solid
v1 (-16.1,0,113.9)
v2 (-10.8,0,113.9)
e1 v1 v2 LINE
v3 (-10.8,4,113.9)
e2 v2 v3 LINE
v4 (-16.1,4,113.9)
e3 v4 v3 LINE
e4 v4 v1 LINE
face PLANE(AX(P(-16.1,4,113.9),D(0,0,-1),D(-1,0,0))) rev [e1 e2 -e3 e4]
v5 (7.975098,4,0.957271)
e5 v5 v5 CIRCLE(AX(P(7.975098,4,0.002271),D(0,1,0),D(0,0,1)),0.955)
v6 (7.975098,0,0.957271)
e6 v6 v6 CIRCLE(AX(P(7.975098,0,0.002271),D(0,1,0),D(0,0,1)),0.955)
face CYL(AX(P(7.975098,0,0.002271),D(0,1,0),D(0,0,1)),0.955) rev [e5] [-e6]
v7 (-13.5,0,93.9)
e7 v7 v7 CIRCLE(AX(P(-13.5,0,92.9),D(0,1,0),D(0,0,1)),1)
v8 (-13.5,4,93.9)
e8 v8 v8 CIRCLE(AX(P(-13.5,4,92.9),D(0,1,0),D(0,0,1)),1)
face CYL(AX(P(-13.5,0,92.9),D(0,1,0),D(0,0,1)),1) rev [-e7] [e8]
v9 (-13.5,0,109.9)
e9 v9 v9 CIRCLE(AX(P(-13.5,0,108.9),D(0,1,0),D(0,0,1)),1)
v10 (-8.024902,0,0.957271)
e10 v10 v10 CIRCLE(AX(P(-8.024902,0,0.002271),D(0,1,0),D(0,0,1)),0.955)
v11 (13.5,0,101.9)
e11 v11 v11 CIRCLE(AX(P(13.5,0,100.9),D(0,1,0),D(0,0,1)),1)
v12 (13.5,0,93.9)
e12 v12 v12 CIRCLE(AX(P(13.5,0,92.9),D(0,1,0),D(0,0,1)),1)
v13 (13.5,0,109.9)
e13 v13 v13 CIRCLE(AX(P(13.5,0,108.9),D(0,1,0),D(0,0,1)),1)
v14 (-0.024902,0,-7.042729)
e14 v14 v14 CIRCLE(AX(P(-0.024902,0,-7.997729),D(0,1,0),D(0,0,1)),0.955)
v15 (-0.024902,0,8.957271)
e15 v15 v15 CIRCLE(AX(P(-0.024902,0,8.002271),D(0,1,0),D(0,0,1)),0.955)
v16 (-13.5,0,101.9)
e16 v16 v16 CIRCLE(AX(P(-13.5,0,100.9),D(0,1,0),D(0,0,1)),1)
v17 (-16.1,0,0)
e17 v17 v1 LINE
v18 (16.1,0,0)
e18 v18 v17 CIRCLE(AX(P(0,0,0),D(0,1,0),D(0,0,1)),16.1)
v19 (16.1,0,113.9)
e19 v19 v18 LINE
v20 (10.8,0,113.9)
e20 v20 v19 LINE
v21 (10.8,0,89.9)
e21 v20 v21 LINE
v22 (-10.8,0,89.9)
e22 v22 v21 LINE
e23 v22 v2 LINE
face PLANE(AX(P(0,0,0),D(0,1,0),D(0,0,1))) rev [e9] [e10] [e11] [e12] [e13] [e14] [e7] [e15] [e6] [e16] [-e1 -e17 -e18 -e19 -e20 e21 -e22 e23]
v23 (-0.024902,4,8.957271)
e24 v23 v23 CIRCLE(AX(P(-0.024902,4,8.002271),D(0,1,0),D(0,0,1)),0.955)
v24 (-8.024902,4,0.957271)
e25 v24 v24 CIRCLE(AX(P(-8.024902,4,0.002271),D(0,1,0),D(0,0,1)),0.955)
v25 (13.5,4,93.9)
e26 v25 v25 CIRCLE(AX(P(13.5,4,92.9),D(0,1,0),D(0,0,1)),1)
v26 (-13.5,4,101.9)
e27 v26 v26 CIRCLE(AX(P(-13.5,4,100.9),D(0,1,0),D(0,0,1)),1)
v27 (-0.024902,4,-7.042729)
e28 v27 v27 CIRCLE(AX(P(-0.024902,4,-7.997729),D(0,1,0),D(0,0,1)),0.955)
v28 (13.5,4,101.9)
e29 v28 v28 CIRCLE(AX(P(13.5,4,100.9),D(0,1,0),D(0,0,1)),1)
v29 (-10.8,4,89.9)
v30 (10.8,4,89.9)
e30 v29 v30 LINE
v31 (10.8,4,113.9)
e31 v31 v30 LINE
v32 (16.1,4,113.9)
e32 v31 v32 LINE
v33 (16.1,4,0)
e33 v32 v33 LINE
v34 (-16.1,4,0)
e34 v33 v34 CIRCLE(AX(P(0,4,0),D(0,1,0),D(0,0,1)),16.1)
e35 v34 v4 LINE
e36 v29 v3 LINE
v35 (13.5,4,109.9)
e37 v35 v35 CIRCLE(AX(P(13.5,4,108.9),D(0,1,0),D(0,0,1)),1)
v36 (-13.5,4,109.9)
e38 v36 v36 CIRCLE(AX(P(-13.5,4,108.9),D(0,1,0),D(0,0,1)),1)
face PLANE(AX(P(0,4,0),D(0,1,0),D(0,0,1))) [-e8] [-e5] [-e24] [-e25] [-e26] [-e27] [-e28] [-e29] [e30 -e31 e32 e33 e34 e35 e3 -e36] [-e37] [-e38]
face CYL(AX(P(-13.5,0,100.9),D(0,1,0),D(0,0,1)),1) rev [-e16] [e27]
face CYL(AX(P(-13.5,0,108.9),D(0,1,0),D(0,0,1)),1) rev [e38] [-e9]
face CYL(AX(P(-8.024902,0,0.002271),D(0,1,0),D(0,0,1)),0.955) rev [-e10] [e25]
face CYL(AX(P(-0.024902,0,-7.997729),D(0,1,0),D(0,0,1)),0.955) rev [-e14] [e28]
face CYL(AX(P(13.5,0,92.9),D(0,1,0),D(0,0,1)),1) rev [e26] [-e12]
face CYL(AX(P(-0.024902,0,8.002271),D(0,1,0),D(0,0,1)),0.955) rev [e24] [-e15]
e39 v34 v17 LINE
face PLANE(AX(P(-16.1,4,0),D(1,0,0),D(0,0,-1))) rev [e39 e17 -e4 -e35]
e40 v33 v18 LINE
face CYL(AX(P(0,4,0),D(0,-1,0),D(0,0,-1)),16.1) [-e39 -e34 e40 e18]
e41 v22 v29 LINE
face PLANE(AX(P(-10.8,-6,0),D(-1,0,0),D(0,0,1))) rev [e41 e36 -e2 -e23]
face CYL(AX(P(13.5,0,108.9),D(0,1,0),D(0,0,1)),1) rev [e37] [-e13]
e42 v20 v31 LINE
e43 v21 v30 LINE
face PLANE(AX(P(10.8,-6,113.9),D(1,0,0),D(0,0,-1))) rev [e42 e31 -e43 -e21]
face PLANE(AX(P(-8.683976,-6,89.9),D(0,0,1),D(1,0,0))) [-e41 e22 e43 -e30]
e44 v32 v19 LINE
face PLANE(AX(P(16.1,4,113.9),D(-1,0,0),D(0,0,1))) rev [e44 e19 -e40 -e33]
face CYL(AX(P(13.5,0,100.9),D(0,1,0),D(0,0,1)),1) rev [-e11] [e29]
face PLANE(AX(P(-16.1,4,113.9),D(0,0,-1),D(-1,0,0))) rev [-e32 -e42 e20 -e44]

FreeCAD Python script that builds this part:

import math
import FreeCAD as App
import Part
import Sketcher
Q = App.Units.Quantity

doc = App.newDocument("Part")
body = doc.addObject("PartDesign::Body", "Body")

sketch1 = body.newObject("Sketcher::SketchObject", "Sketch")
sketch1.AttachmentSupport = (doc.getObject("XZ_Plane"), [""])
sketch1.MapMode = "FlatFace"
sketch1.addGeometry(Part.LineSegment(App.Vector(-16.1, 0, 0), App.Vector(-16.1, 113.9, 0)), False)
sketch1.addGeometry(Part.LineSegment(App.Vector(-16.1, 113.9, 0), App.Vector(16.1, 113.9, 0)), False)
sketch1.addGeometry(Part.LineSegment(App.Vector(16.1, 113.9, 0), App.Vector(16.1, 0, 0)), False)
sketch1.addGeometry(Part.ArcOfCircle(Part.Circle(App.Vector(0, 0, 0), App.Vector(0, 0, 1), 16.1), math.radians(180), math.radians(360)), False)
sketch1.addConstraint(Sketcher.Constraint("Coincident", 0, 2, 1, 1))
sketch1.addConstraint(Sketcher.Constraint("Coincident", 1, 2, 2, 1))
sketch1.addConstraint(Sketcher.Constraint("Tangent", 2, 2, 3, 2))
sketch1.addConstraint(Sketcher.Constraint("Tangent", 3, 1, 0, 1))
sketch1.addConstraint(Sketcher.Constraint("Vertical", 0))
sketch1.addConstraint(Sketcher.Constraint("Horizontal", 1))
sketch1.addConstraint(Sketcher.Constraint("Vertical", 2))
sketch1.addConstraint(Sketcher.Constraint("Coincident", 3, 3, -1, 1))
sketch1.addConstraint(Sketcher.Constraint("Radius", 3, Q("16.1 mm")))
sketch1.addConstraint(Sketcher.Constraint("DistanceY", 0, 1, 0, 2, Q("113.9 mm")))
pad1 = body.newObject("PartDesign::Pad", "Pad")
pad1.Profile = sketch1
pad1.Length = 4
pad1.Reversed = True

sketch2 = body.newObject("Sketcher::SketchObject", "Sketch001")
sketch2.AttachmentSupport = (doc.getObject("XZ_Plane"), [""])
sketch2.MapMode = "FlatFace"
sketch2.AttachmentOffset = App.Placement(App.Vector(0, 0, -4), App.Rotation())
sketch2.addGeometry(Part.Circle(App.Vector(7.975098, 0.002271, 0), App.Vector(0, 0, 1), 0.955), False)
sketch2.addGeometry(Part.Circle(App.Vector(-8.024902, 0.002271, 0), App.Vector(0, 0, 1), 0.955), False)
sketch2.addGeometry(Part.Circle(App.Vector(-0.024902, 8.002271, 0), App.Vector(0, 0, 1), 0.955), False)
sketch2.addGeometry(Part.Circle(App.Vector(-0.024902, -7.997729, 0), App.Vector(0, 0, 1), 0.955), False)
sketch2.addGeometry(Part.Circle(App.Vector(-13.5, 108.9, 0), App.Vector(0, 0, 1), 1), False)
sketch2.addGeometry(Part.Circle(App.Vector(13.5, 108.9, 0), App.Vector(0, 0, 1), 1), False)
sketch2.addGeometry(Part.Circle(App.Vector(-13.5, 100.9, 0), App.Vector(0, 0, 1), 1), False)
sketch2.addGeometry(Part.Circle(App.Vector(13.5, 100.9, 0), App.Vector(0, 0, 1), 1), False)
sketch2.addGeometry(Part.Circle(App.Vector(-13.5, 92.9, 0), App.Vector(0, 0, 1), 1), False)
sketch2.addGeometry(Part.Circle(App.Vector(13.5, 92.9, 0), App.Vector(0, 0, 1), 1), False)
sketch2.addConstraint(Sketcher.Constraint("Equal", 0, 1))
sketch2.addConstraint(Sketcher.Constraint("Equal", 1, 2))
sketch2.addConstraint(Sketcher.Constraint("Equal", 2, 3))
sketch2.addConstraint(Sketcher.Constraint("Equal", 4, 5))
sketch2.addConstraint(Sketcher.Constraint("Equal", 5, 6))
sketch2.addConstraint(Sketcher.Constraint("Equal", 6, 7))
sketch2.addConstraint(Sketcher.Constraint("Equal", 7, 8))
sketch2.addConstraint(Sketcher.Constraint("Equal", 8, 9))
sketch2.addConstraint(Sketcher.Constraint("Symmetric", 4, 3, 5, 3, -2))
sketch2.addConstraint(Sketcher.Constraint("Symmetric", 6, 3, 7, 3, -2))
sketch2.addConstraint(Sketcher.Constraint("Symmetric", 8, 3, 9, 3, -2))
sketch2.addConstraint(Sketcher.Constraint("Horizontal", 0, 3, 1, 3))
sketch2.addConstraint(Sketcher.Constraint("Vertical", 2, 3, 3, 3))
sketch2.addConstraint(Sketcher.Constraint("Vertical", 4, 3, 6, 3))
sketch2.addConstraint(Sketcher.Constraint("Vertical", 6, 3, 8, 3))
sketch2.addConstraint(Sketcher.Constraint("Diameter", 4, Q("2 mm")))
sketch2.addConstraint(Sketcher.Constraint("Diameter", 0, Q("1.91 mm")))
sketch2.addConstraint(Sketcher.Constraint("DistanceX", 1, 3, 0, 3, Q("16 mm")))
sketch2.addConstraint(Sketcher.Constraint("DistanceX", 2, 3, 0, 3, Q("8 mm")))
sketch2.addConstraint(Sketcher.Constraint("DistanceY", 0, 3, 2, 3, Q("8 mm")))
sketch2.addConstraint(Sketcher.Constraint("DistanceY", 3, 3, 0, 3, Q("8 mm")))
sketch2.addConstraint(Sketcher.Constraint("DistanceX", 4, 3, 5, 3, Q("27 mm")))
sketch2.addConstraint(Sketcher.Constraint("DistanceY", 6, 3, 4, 3, Q("8 mm")))
sketch2.addConstraint(Sketcher.Constraint("DistanceY", 8, 3, 6, 3, Q("8 mm")))
sketch2.addConstraint(Sketcher.Constraint("DistanceY", -1, 1, 4, 3, Q("108.9 mm")))
sketch2.addConstraint(Sketcher.Constraint("DistanceY", -1, 1, 0, 3, Q("0.002271 mm")))
sketch2.addConstraint(Sketcher.Constraint("DistanceX", -1, 1, 0, 3, Q("7.975098 mm")))
pocket1 = body.newObject("PartDesign::Pocket", "Pocket")
pocket1.Profile = sketch2
pocket1.Length = 4
pocket1.Reversed = True

sketch3 = body.newObject("Sketcher::SketchObject", "Sketch002")
sketch3.AttachmentSupport = (doc.getObject("XZ_Plane"), [""])
sketch3.MapMode = "FlatFace"
sketch3.AttachmentOffset = App.Placement(App.Vector(0, 0, -4), App.Rotation())
sketch3.addGeometry(Part.LineSegment(App.Vector(-8.683976, 89.9, 0), App.Vector(-8.683976, 113.9, 0)), False)
sketch3.addGeometry(Part.LineSegment(App.Vector(-8.683976, 113.9, 0), App.Vector(9.316024, 113.9, 0)), False)
sketch3.addGeometry(Part.LineSegment(App.Vector(9.316024, 113.9, 0), App.Vector(9.316024, 89.9, 0)), False)
sketch3.addGeometry(Part.LineSegment(App.Vector(9.316024, 89.9, 0), App.Vector(-8.683976, 89.9, 0)), False)
sketch3.addConstraint(Sketcher.Constraint("Coincident", 0, 2, 1, 1))
sketch3.addConstraint(Sketcher.Constraint("Coincident", 1, 2, 2, 1))
sketch3.addConstraint(Sketcher.Constraint("Coincident", 2, 2, 3, 1))
sketch3.addConstraint(Sketcher.Constraint("Coincident", 3, 2, 0, 1))
sketch3.addConstraint(Sketcher.Constraint("Vertical", 0))
sketch3.addConstraint(Sketcher.Constraint("Horizontal", 1))
sketch3.addConstraint(Sketcher.Constraint("Vertical", 2))
sketch3.addConstraint(Sketcher.Constraint("Horizontal", 3))
sketch3.addConstraint(Sketcher.Constraint("DistanceX", 1, 1, 1, 2, Q("18 mm")))
sketch3.addConstraint(Sketcher.Constraint("DistanceY", 0, 1, 0, 2, Q("24 mm")))
sketch3.addConstraint(Sketcher.Constraint("DistanceY", -1, 1, 0, 2, Q("113.9 mm")))
sketch3.addConstraint(Sketcher.Constraint("DistanceX", 0, 2, -1, 1, Q("8.683976 mm")))
pocket2 = body.newObject("PartDesign::Pocket", "Pocket001")
pocket2.Profile = sketch3
pocket2.Length = 10
pocket2.Reversed = True

sketch4 = body.newObject("Sketcher::SketchObject", "Sketch003")
sketch4.AttachmentSupport = (doc.getObject("XZ_Plane"), [""])
sketch4.MapMode = "FlatFace"
sketch4.AttachmentOffset = App.Placement(App.Vector(0, 0, -4), App.Rotation())
sketch4.addGeometry(Part.LineSegment(App.Vector(-10.8, 89.9, 0), App.Vector(-10.8, 113.9, 0)), False)
sketch4.addGeometry(Part.LineSegment(App.Vector(-10.8, 113.9, 0), App.Vector(-8.683976, 113.9, 0)), False)
sketch4.addGeometry(Part.LineSegment(App.Vector(-8.683976, 113.9, 0), App.Vector(-8.683976, 89.9, 0)), False)
sketch4.addGeometry(Part.LineSegment(App.Vector(-8.683976, 89.9, 0), App.Vector(-10.8, 89.9, 0)), False)
sketch4.addGeometry(Part.LineSegment(App.Vector(9.316024, 89.9, 0), App.Vector(9.316024, 113.9, 0)), False)
sketch4.addGeometry(Part.LineSegment(App.Vector(9.316024, 113.9, 0), App.Vector(10.8, 113.9, 0)), False)
sketch4.addGeometry(Part.LineSegment(App.Vector(10.8, 113.9, 0), App.Vector(10.8, 89.9, 0)), False)
sketch4.addGeometry(Part.LineSegment(App.Vector(10.8, 89.9, 0), App.Vector(9.316024, 89.9, 0)), False)
sketch4.addConstraint(Sketcher.Constraint("Coincident", 0, 2, 1, 1))
sketch4.addConstraint(Sketcher.Constraint("Coincident", 1, 2, 2, 1))
sketch4.addConstraint(Sketcher.Constraint("Coincident", 2, 2, 3, 1))
sketch4.addConstraint(Sketcher.Constraint("Coincident", 3, 2, 0, 1))
sketch4.addConstraint(Sketcher.Constraint("Coincident", 4, 2, 5, 1))
sketch4.addConstraint(Sketcher.Constraint("Coincident", 5, 2, 6, 1))
sketch4.addConstraint(Sketcher.Constraint("Coincident", 6, 2, 7, 1))
sketch4.addConstraint(Sketcher.Constraint("Coincident", 7, 2, 4, 1))
sketch4.addConstraint(Sketcher.Constraint("Vertical", 0))
sketch4.addConstraint(Sketcher.Constraint("Horizontal", 1))
sketch4.addConstraint(Sketcher.Constraint("Vertical", 2))
sketch4.addConstraint(Sketcher.Constraint("Horizontal", 3))
sketch4.addConstraint(Sketcher.Constraint("Vertical", 4))
sketch4.addConstraint(Sketcher.Constraint("Horizontal", 5))
sketch4.addConstraint(Sketcher.Constraint("Vertical", 6))
sketch4.addConstraint(Sketcher.Constraint("Horizontal", 7))
sketch4.addConstraint(Sketcher.Constraint("Symmetric", 0, 2, 5, 2, -2))
sketch4.addConstraint(Sketcher.Constraint("Horizontal", 3, 2, 6, 2))
sketch4.addConstraint(Sketcher.Constraint("DistanceY", 0, 1, 0, 2, Q("24 mm")))
sketch4.addConstraint(Sketcher.Constraint("DistanceX", 1, 2, 4, 2, Q("18 mm")))
sketch4.addConstraint(Sketcher.Constraint("DistanceX", 0, 2, -1, 1, Q("10.8 mm")))
sketch4.addConstraint(Sketcher.Constraint("DistanceY", -1, 1, 0, 2, Q("113.9 mm")))
sketch4.addConstraint(Sketcher.Constraint("DistanceX", 1, 1, 1, 2, Q("2.116024 mm")))
pocket3 = body.newObject("PartDesign::Pocket", "Pocket002")
pocket3.Profile = sketch4
pocket3.Length = 10
pocket3.Reversed = True

doc.recompute()
